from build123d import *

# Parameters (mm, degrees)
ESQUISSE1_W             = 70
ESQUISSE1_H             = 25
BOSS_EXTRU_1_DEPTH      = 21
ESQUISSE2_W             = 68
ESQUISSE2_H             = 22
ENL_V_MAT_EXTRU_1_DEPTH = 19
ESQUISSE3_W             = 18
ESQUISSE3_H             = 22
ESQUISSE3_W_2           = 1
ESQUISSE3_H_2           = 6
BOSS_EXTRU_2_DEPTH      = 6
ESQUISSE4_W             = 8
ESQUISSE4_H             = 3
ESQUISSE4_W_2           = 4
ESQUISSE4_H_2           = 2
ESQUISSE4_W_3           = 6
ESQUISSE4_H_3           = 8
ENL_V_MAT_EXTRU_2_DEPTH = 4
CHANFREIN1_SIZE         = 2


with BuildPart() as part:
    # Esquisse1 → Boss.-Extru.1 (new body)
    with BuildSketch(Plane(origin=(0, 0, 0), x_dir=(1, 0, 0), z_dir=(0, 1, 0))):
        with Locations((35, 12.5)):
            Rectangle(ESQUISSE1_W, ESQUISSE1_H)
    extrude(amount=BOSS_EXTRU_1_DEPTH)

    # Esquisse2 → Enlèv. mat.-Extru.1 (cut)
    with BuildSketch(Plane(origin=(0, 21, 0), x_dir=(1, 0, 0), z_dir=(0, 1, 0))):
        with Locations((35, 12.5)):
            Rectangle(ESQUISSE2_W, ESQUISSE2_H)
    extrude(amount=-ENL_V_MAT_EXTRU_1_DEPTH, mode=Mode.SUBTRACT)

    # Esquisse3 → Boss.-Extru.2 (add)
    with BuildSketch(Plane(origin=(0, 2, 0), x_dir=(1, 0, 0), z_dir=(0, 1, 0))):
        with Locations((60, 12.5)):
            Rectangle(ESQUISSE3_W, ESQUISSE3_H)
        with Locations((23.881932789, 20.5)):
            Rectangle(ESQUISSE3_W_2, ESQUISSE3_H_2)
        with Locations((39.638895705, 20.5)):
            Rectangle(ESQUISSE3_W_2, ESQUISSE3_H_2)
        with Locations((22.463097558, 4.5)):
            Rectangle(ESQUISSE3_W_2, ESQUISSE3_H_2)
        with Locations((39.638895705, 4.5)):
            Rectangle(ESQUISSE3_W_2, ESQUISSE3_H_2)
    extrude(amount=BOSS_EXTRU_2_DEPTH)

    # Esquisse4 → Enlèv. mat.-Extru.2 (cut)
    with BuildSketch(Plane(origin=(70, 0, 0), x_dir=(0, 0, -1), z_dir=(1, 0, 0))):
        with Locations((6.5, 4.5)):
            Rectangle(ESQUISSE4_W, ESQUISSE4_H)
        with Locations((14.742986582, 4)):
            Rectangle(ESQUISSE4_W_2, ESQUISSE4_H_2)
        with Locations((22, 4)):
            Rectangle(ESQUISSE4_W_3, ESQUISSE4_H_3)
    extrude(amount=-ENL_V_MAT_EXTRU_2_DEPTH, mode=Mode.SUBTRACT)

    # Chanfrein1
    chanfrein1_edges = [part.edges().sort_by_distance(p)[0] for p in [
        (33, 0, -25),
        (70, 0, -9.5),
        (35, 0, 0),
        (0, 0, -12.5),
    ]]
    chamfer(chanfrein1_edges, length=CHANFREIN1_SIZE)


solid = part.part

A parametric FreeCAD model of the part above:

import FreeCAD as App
import Part
import Sketcher


def edges_at(feature, points):
    """Names of the edges that pass closest to the given points."""
    edges = feature.Shape.Edges
    near = lambda p: min(range(len(edges)), key=lambda i: edges[i].distToShape(Part.Vertex(*p))[0])
    return sorted({f"Edge{near(p) + 1}" for p in points})


def add_polygon(sketch, points):
    """Adds a closed chain of lines whose ends are joined by coincident constraints."""
    first, n = sketch.GeometryCount, len(points)
    for a, b in zip(points, points[1:] + points[:1]):
        sketch.addGeometry(Part.LineSegment(App.Vector(*a, 0), App.Vector(*b, 0)), False)
    for i in range(n):
        sketch.addConstraint(Sketcher.Constraint("Coincident", first + i, 2, first + (i + 1) % n, 1))

doc = App.newDocument("Part")
params = doc.addObject("Spreadsheet::Sheet", "Params")
for row, (alias, value) in enumerate([
    ("sketch1_width", "70 mm"),
    ("sketch1_height", "25 mm"),
    ("pad1_length", "21 mm"),
    ("sketch2_width", "68 mm"),
    ("sketch2_height", "22 mm"),
    ("pocket1_length", "19 mm"),
    ("sketch3_width", "18 mm"),
    ("sketch3_width2", "1 mm"),
    ("sketch3_height", "22 mm"),
    ("sketch3_height2", "6 mm"),
    ("pad2_length", "6 mm"),
    ("sketch4_width", "3 mm"),
    ("sketch4_width2", "2 mm"),
    ("sketch4_width3", "8 mm"),
    ("sketch4_height", "4 mm"),
    ("sketch4_height2", "6 mm"),
    ("pocket2_length", "4 mm"),
    ("chamfer_size", "2 mm"),
], start=1):
    params.set(f"A{row}", alias)
    params.set(f"B{row}", "=" + value)
    params.setAlias(f"B{row}", alias)

body = doc.addObject("PartDesign::Body", "Body")

# Sketch on XZ plane
sketch1 = body.newObject("Sketcher::SketchObject", "Sketch")
sketch1.AttachmentSupport = (doc.getObject("XZ_Plane"), [""])
sketch1.MapMode = "FlatFace"
add_polygon(sketch1, [(0, -25), (0, 0), (70, 0), (70, -25)])  # lines 0-3
sketch1.addConstraint(Sketcher.Constraint("Vertical", 0))
sketch1.addConstraint(Sketcher.Constraint("Horizontal", 1))
sketch1.addConstraint(Sketcher.Constraint("Vertical", 2))
sketch1.addConstraint(Sketcher.Constraint("Horizontal", 3))
sketch1.addConstraint(Sketcher.Constraint("Coincident", 0, 2, -1, 1))
sketch1.addConstraint(Sketcher.Constraint("DistanceX", 1, 1, 1, 2, 70.0))
sketch1.addConstraint(Sketcher.Constraint("DistanceY", 0, 1, 0, 2, 25.0))
sketch1.setExpression("Constraints[9]", "Params.sketch1_width")
sketch1.setExpression("Constraints[10]", "Params.sketch1_height")
pad1 = body.newObject("PartDesign::Pad", "Pad")
pad1.Profile = sketch1
pad1.setExpression("Length", "Params.pad1_length")
pad1.Reversed = True

# Sketch on XZ plane
sketch2 = body.newObject("Sketcher::SketchObject", "Sketch001")
sketch2.AttachmentSupport = (doc.getObject("XZ_Plane"), [""])
sketch2.MapMode = "FlatFace"
sketch2.AttachmentOffset = App.Placement(App.Vector(0, 0, -21), App.Rotation())
add_polygon(sketch2, [(1, -23.5), (1, -1.5), (69, -1.5), (69, -23.5)])  # lines 0-3
sketch2.addConstraint(Sketcher.Constraint("Vertical", 0))
sketch2.addConstraint(Sketcher.Constraint("Horizontal", 1))
sketch2.addConstraint(Sketcher.Constraint("Vertical", 2))
sketch2.addConstraint(Sketcher.Constraint("Horizontal", 3))
sketch2.addConstraint(Sketcher.Constraint("DistanceX", 1, 1, 1, 2, 68.0))
sketch2.addConstraint(Sketcher.Constraint("DistanceY", 0, 1, 0, 2, 22.0))
sketch2.addConstraint(Sketcher.Constraint("DistanceX", -1, 1, 0, 2, 1.0))
sketch2.addConstraint(Sketcher.Constraint("DistanceY", 0, 2, -1, 1, 1.5))
sketch2.setExpression("Constraints[8]", "Params.sketch2_width")
sketch2.setExpression("Constraints[9]", "Params.sketch2_height")
pocket1 = body.newObject("PartDesign::Pocket", "Pocket")
pocket1.Profile = sketch2
pocket1.setExpression("Length", "Params.pocket1_length")
pocket1.Reversed = True

# Sketch on XZ plane
sketch3 = body.newObject("Sketcher::SketchObject", "Sketch002")
sketch3.AttachmentSupport = (doc.getObject("XZ_Plane"), [""])
sketch3.MapMode = "FlatFace"
sketch3.AttachmentOffset = App.Placement(App.Vector(0, 0, -2), App.Rotation())
add_polygon(sketch3, [(51, -23.5), (51, -1.5), (69, -1.5), (69, -23.5)])  # lines 0-3
add_polygon(sketch3, [(23.381933, -23.5), (23.381933, -17.5), (24.381933, -17.5), (24.381933, -23.5)])  # lines 4-7
add_polygon(sketch3, [(39.138896, -23.5), (39.138896, -17.5), (40.138896, -17.5), (40.138896, -23.5)])  # lines 8-11
add_polygon(sketch3, [(21.963098, -7.5), (21.963098, -1.5), (22.963098, -1.5), (22.963098, -7.5)])  # lines 12-15
add_polygon(sketch3, [(39.138896, -7.5), (39.138896, -1.5), (40.138896, -1.5), (40.138896, -7.5)])  # lines 16-19
sketch3.addConstraint(Sketcher.Constraint("Vertical", 0))
sketch3.addConstraint(Sketcher.Constraint("Horizontal", 1))
sketch3.addConstraint(Sketcher.Constraint("Vertical", 2))
sketch3.addConstraint(Sketcher.Constraint("Horizontal", 3))
sketch3.addConstraint(Sketcher.Constraint("Vertical", 4))
sketch3.addConstraint(Sketcher.Constraint("Horizontal", 5))
sketch3.addConstraint(Sketcher.Constraint("Vertical", 6))
sketch3.addConstraint(Sketcher.Constraint("Horizontal", 7))
sketch3.addConstraint(Sketcher.Constraint("Vertical", 8))
sketch3.addConstraint(Sketcher.Constraint("Horizontal", 9))
sketch3.addConstraint(Sketcher.Constraint("Vertical", 10))
sketch3.addConstraint(Sketcher.Constraint("Horizontal", 11))
sketch3.addConstraint(Sketcher.Constraint("Vertical", 12))
sketch3.addConstraint(Sketcher.Constraint("Horizontal", 13))
sketch3.addConstraint(Sketcher.Constraint("Vertical", 14))
sketch3.addConstraint(Sketcher.Constraint("Horizontal", 15))
sketch3.addConstraint(Sketcher.Constraint("Vertical", 16))
sketch3.addConstraint(Sketcher.Constraint("Horizontal", 17))
sketch3.addConstraint(Sketcher.Constraint("Vertical", 18))
sketch3.addConstraint(Sketcher.Constraint("Horizontal", 19))
sketch3.addConstraint(Sketcher.Constraint("Horizontal", 3, 2, 6, 2))
sketch3.addConstraint(Sketcher.Constraint("Horizontal", 5, 2, 8, 2))
sketch3.addConstraint(Sketcher.Constraint("Horizontal", 7, 2, 10, 2))
sketch3.addConstraint(Sketcher.Constraint("Horizontal", 1, 2, 12, 2))
sketch3.addConstraint(Sketcher.Constraint("Horizontal", 13, 2, 16, 2))
sketch3.addConstraint(Sketcher.Constraint("Horizontal", 15, 2, 18, 2))
sketch3.addConstraint(Sketcher.Constraint("Vertical", 11, 2, 16, 2))
sketch3.addConstraint(Sketcher.Constraint("Vertical", 10, 2, 17, 2))
sketch3.addConstraint(Sketcher.Constraint("Equal", 7, 9))
sketch3.addConstraint(Sketcher.Constraint("Equal", 11, 13))
sketch3.addConstraint(Sketcher.Constraint("Equal", 10, 12))
sketch3.addConstraint(Sketcher.Constraint("DistanceX", 1, 1, 1, 2, 18.0))
sketch3.addConstraint(Sketcher.Constraint("DistanceX", 5, 1, 5, 2, 1.0))
sketch3.addConstraint(Sketcher.Constraint("DistanceY", 0, 1, 0, 2, 22.0))
sketch3.addConstraint(Sketcher.Constraint("DistanceY", 4, 1, 4, 2, 6.0))
sketch3.addConstraint(Sketcher.Constraint("DistanceX", -1, 1, 0, 2, 51.0))
sketch3.addConstraint(Sketcher.Constraint("DistanceY", 0, 2, -1, 1, 1.5))
sketch3.addConstraint(Sketcher.Constraint("DistanceX", 12, 2, 8, 2, 17.175798))
sketch3.addConstraint(Sketcher.Constraint("DistanceX", -1, 1, 4, 2, 23.381933))
sketch3.addConstraint(Sketcher.Constraint("DistanceX", -1, 1, 8, 2, 39.138896))
sketch3.setExpression("Constraints[51]", "Params.sketch3_width")
sketch3.setExpression("Constraints[52]", "Params.sketch3_width2")
sketch3.setExpression("Constraints[53]", "Params.sketch3_height")
sketch3.setExpression("Constraints[54]", "Params.sketch3_height2")
pad2 = body.newObject("PartDesign::Pad", "Pad001")
pad2.Profile = sketch3
pad2.setExpression("Length", "Params.pad2_length")
pad2.Reversed = True

# Sketch on YZ plane
sketch4 = body.newObject("Sketcher::SketchObject", "Sketch003")
sketch4.AttachmentSupport = (doc.getObject("YZ_Plane"), [""])
sketch4.MapMode = "FlatFace"
sketch4.AttachmentOffset = App.Placement(App.Vector(0, 0, 70), App.Rotation())
add_polygon(sketch4, [(6, -2.5), (3, -2.5), (3, -10.5), (6, -10.5)])  # lines 0-3
add_polygon(sketch4, [(5, -12.742987), (3, -12.742987), (3, -16.742987), (5, -16.742987)])  # lines 4-7
add_polygon(sketch4, [(8, -19), (0, -19), (0, -25), (8, -25)])  # lines 8-11
sketch4.addConstraint(Sketcher.Constraint("Horizontal", 0))
sketch4.addConstraint(Sketcher.Constraint("Vertical", 1))
sketch4.addConstraint(Sketcher.Constraint("Horizontal", 2))
sketch4.addConstraint(Sketcher.Constraint("Vertical", 3))
sketch4.addConstraint(Sketcher.Constraint("Horizontal", 4))
sketch4.addConstraint(Sketcher.Constraint("Vertical", 5))
sketch4.addConstraint(Sketcher.Constraint("Horizontal", 6))
sketch4.addConstraint(Sketcher.Constraint("Vertical", 7))
sketch4.addConstraint(Sketcher.Constraint("Horizontal", 8))
sketch4.addConstraint(Sketcher.Constraint("Vertical", 9))
sketch4.addConstraint(Sketcher.Constraint("Horizontal", 10))
sketch4.addConstraint(Sketcher.Constraint("Vertical", 11))
sketch4.addConstraint(Sketcher.Constraint("PointOnObject", 8, 2, -2))
sketch4.addConstraint(Sketcher.Constraint("Vertical", 1, 2, 4, 2))
sketch4.addConstraint(Sketcher.Constraint("Equal", 10, 1))
sketch4.addConstraint(Sketcher.Constraint("DistanceX", 0, 2, 0, 1, 3.0))
sketch4.addConstraint(Sketcher.Constraint("DistanceX", 4, 2, 4, 1, 2.0))
sketch4.addConstraint(Sketcher.Constraint("DistanceX", 8, 2, 8, 1, 8.0))
sketch4.addConstraint(Sketcher.Constraint("DistanceY", 5, 2, 5, 1, 4.0))
sketch4.addConstraint(Sketcher.Constraint("DistanceY", 9, 2, 9, 1, 6.0))
sketch4.addConstraint(Sketcher.Constraint("DistanceX", -1, 1, 0, 2, 3.0))
sketch4.addConstraint(Sketcher.Constraint("DistanceY", 8, 2, -1, 1, 19.0))
sketch4.addConstraint(Sketcher.Constraint("DistanceY", 0, 2, -1, 1, 2.5))
sketch4.addConstraint(Sketcher.Constraint("DistanceY", 4, 2, -1, 1, 12.742987))
sketch4.setExpression("Constraints[27]", "Params.sketch4_width")
sketch4.setExpression("Constraints[28]", "Params.sketch4_width2")
sketch4.setExpression("Constraints[29]", "Params.sketch4_width3")
sketch4.setExpression("Constraints[30]", "Params.sketch4_height")
sketch4.setExpression("Constraints[31]", "Params.sketch4_height2")
pocket2 = body.newObject("PartDesign::Pocket", "Pocket001")
pocket2.Profile = sketch4
pocket2.setExpression("Length", "Params.pocket2_length")
doc.recompute()

chamfer = body.newObject("PartDesign::Chamfer", "Chamfer")
chamfer.Base = (pocket2, edges_at(pocket2, [
    (33, 0, -25),
    (70, 0, -9.5),
    (35, 0, 0),
    (0, 0, -12.5),
]))
chamfer.setExpression("Size", "Params.chamfer_size")

doc.recompute()
